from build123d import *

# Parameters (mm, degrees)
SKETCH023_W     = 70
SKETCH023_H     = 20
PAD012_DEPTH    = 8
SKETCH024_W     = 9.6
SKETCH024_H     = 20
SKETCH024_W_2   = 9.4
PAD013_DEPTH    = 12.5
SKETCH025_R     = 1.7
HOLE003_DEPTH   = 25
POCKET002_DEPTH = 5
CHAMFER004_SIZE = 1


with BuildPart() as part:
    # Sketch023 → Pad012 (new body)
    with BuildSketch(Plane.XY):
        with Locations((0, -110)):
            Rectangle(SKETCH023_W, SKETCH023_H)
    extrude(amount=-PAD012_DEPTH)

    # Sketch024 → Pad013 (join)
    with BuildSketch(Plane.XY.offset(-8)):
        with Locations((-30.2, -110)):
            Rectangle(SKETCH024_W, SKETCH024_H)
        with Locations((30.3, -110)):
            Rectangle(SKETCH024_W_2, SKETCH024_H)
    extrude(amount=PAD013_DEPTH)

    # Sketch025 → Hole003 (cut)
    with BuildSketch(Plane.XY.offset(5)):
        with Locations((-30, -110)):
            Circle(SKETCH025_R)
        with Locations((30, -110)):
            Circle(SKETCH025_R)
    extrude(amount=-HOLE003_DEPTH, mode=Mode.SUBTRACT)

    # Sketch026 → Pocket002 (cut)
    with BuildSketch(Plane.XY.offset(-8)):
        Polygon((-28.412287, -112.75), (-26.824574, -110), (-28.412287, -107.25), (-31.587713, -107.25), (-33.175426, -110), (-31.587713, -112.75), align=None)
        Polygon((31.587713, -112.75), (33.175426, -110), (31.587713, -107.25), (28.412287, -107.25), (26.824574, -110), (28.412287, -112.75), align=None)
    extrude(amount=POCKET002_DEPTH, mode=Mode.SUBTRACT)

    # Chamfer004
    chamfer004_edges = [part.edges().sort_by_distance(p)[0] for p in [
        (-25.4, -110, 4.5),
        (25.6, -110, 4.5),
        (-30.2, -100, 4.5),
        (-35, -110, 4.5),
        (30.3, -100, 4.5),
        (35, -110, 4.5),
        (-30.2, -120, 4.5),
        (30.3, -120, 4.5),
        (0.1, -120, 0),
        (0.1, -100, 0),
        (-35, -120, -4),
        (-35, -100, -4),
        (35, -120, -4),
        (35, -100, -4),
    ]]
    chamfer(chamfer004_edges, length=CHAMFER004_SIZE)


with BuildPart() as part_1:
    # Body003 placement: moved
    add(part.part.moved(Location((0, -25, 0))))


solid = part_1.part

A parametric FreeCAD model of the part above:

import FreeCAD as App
import Part
import Sketcher
Q = App.Units.Quantity


def edges_at(feature, points):
    """Names of the edges that pass closest to the given points."""
    edges = feature.Shape.Edges
    near = lambda p: min(range(len(edges)), key=lambda i: edges[i].distToShape(Part.Vertex(*p))[0])
    return sorted({f"Edge{near(p) + 1}" for p in points})


def add_polygon(sketch, points):
    """Adds a closed chain of lines whose ends are joined by coincident constraints."""
    first, n = sketch.GeometryCount, len(points)
    for a, b in zip(points, points[1:] + points[:1]):
        sketch.addGeometry(Part.LineSegment(App.Vector(*a, 0), App.Vector(*b, 0)), False)
    for i in range(n):
        sketch.addConstraint(Sketcher.Constraint("Coincident", first + i, 2, first + (i + 1) % n, 1))

doc = App.newDocument("Part")
body = doc.addObject("PartDesign::Body", "Body")

sketch1 = doc.addObject("Sketcher::SketchObject", "Sketch")
body.addObject(sketch1)
sketch1.AttachmentSupport = (doc.XY_Plane, [""])
sketch1.MapMode = "FlatFace"
add_polygon(sketch1, [(-35, -100), (-35, -120), (35, -120), (35, -100)])
sketch1.addConstraint([
    Sketcher.Constraint("Vertical", 0),
    Sketcher.Constraint("Horizontal", 1),
    Sketcher.Constraint("Vertical", 2),
    Sketcher.Constraint("Horizontal", 3),
    Sketcher.Constraint("DistanceX", 1, 1, 1, 2, Q("70 mm")),
    Sketcher.Constraint("DistanceY", 0, 2, 0, 1, Q("20 mm")),
    Sketcher.Constraint("DistanceX", 0, 2, -1, 1, Q("35 mm")),
    Sketcher.Constraint("DistanceY", 0, 2, -1, 1, Q("120 mm")),
])
pad1 = doc.addObject("PartDesign::Pad", "Pad")
body.addObject(pad1)
pad1.Profile = sketch1
pad1.Length = 8
pad1.Reversed = True

sketch2 = doc.addObject("Sketcher::SketchObject", "Sketch001")
body.addObject(sketch2)
sketch2.AttachmentSupport = (doc.XY_Plane, [""])
sketch2.MapMode = "FlatFace"
sketch2.AttachmentOffset = App.Placement(App.Vector(0, 0, -8), App.Rotation())
add_polygon(sketch2, [(-35, -100), (-35, -120), (-25, -120), (-25, -100)])
add_polygon(sketch2, [(26, -100), (26, -120), (35, -120), (35, -100)])
sketch2.addConstraint([
    Sketcher.Constraint("Vertical", 0),
    Sketcher.Constraint("Horizontal", 1),
    Sketcher.Constraint("Vertical", 2),
    Sketcher.Constraint("Horizontal", 3),
    Sketcher.Constraint("Vertical", 4),
    Sketcher.Constraint("Horizontal", 5),
    Sketcher.Constraint("Vertical", 6),
    Sketcher.Constraint("Horizontal", 7),
    Sketcher.Constraint("Symmetric", 0, 2, 5, 2, -2),
    Sketcher.Constraint("Horizontal", 3, 2, 6, 2),
    Sketcher.Constraint("DistanceY", 0, 2, 0, 1, Q("20 mm")),
    Sketcher.Constraint("DistanceX", 1, 1, 1, 2, Q("9.6 mm")),
    Sketcher.Constraint("DistanceX", 5, 1, 5, 2, Q("9.4 mm")),
    Sketcher.Constraint("DistanceX", 0, 2, -1, 1, Q("35 mm")),
    Sketcher.Constraint("DistanceY", 0, 2, -1, 1, Q("120 mm")),
])
pad2 = doc.addObject("PartDesign::Pad", "Pad001")
body.addObject(pad2)
pad2.Profile = sketch2
pad2.Length = 12.5

sketch3 = doc.addObject("Sketcher::SketchObject", "Sketch002")
body.addObject(sketch3)
sketch3.AttachmentSupport = (doc.XY_Plane, [""])
sketch3.MapMode = "FlatFace"
sketch3.AttachmentOffset = App.Placement(App.Vector(0, 0, 5), App.Rotation())
sketch3.addGeometry([
    Part.Circle(App.Vector(-30, -110, 0), App.Vector(0, 0, 1), 1.7),
    Part.Circle(App.Vector(30, -110, 0), App.Vector(0, 0, 1), 1.7),
], False)
sketch3.addConstraint([
    Sketcher.Constraint("Equal", 0, 1),
    Sketcher.Constraint("Symmetric", 0, 3, 1, 3, -2),
    Sketcher.Constraint("Diameter", 0, Q("3.4 mm")),
    Sketcher.Constraint("DistanceX", 0, 3, -1, 1, Q("30 mm")),
    Sketcher.Constraint("DistanceY", 0, 3, -1, 1, Q("110 mm")),
])
pocket1 = doc.addObject("PartDesign::Pocket", "Pocket")
body.addObject(pocket1)
pocket1.Profile = sketch3
pocket1.Length = 25

sketch4 = doc.addObject("Sketcher::SketchObject", "Sketch003")
body.addObject(sketch4)
sketch4.AttachmentSupport = (doc.XY_Plane, [""])
sketch4.MapMode = "FlatFace"
sketch4.AttachmentOffset = App.Placement(App.Vector(0, 0, -8), App.Rotation())
add_polygon(sketch4, [(-28.4, -112.8), (-26.8, -110), (-28.4, -107.2), (-31.6, -107.2), (-33.2, -110), (-31.6, -112.8)])
add_polygon(sketch4, [(31.6, -112.8), (33.2, -110), (31.6, -107.2), (28.4, -107.2), (26.8, -110), (28.4, -112.8)])
sketch4.addConstraint([
    Sketcher.Constraint("Horizontal", 2),
    Sketcher.Constraint("Horizontal", 5),
    Sketcher.Constraint("Horizontal", 8),
    Sketcher.Constraint("Horizontal", 11),
    Sketcher.Constraint("Symmetric", 3, 2, 6, 2, -2),
    Sketcher.Constraint("Symmetric", 2, 2, 7, 2, -2),
    Sketcher.Constraint("Symmetric", 0, 2, 9, 2, -2),
    Sketcher.Constraint("Symmetric", 5, 2, 10, 2, -2),
    Sketcher.Constraint("Parallel", 0, 3),
    Sketcher.Constraint("Parallel", 1, 4),
    Sketcher.Constraint("Parallel", 3, 6),
    Sketcher.Constraint("Parallel", 4, 7),
    Sketcher.Constraint("Parallel", 6, 9),
    Sketcher.Constraint("Horizontal", 0, 2, 3, 2),
    Sketcher.Constraint("Vertical", 2, 2, 4, 2),
    Sketcher.Constraint("Angle", 0, Q("60.000004 deg")),
    Sketcher.Constraint("DistanceY", 0, 2, -1, 1, Q("110 mm")),
    Sketcher.Constraint("DistanceX", 0, 2, 6, 2, Q("60 mm")),
    Sketcher.Constraint("DistanceY", 4, 2, 2, 2, Q("5.5 mm")),
    Sketcher.Constraint("DistanceX", 2, 2, 2, 1, Q("3.175426 mm")),
])
pocket2 = doc.addObject("PartDesign::Pocket", "Pocket001")
body.addObject(pocket2)
pocket2.Profile = sketch4
pocket2.Length = 5
pocket2.Reversed = True
doc.recompute()

chamfer = doc.addObject("PartDesign::Chamfer", "Chamfer")
body.addObject(chamfer)
chamfer.Base = (pocket2, edges_at(pocket2, [
    (-25.4, -110, 4.5),
    (25.6, -110, 4.5),
    (-30.2, -100, 4.5),
    (-35, -110, 4.5),
    (30.3, -100, 4.5),
    (35, -110, 4.5),
    (-30.2, -120, 4.5),
    (30.3, -120, 4.5),
    (0.1, -120, 0),
    (0.1, -100, 0),
    (-35, -120, -1.75),
    (-35, -100, -1.75),
    (35, -120, -1.75),
    (35, -100, -1.75),
]))
chamfer.Size = 1
body2 = doc.addObject("PartDesign::Body", "Body001")
doc.recompute()

body.Placement = App.Placement(App.Vector(0, -25, 0), App.Rotation(App.Vector(0, 0, 1), 0))
boolean = doc.addObject("PartDesign::Boolean", "Boolean")
body2.addObject(boolean)
boolean.Type = "Fuse"
boolean.addObjects([body])

doc.recompute()
